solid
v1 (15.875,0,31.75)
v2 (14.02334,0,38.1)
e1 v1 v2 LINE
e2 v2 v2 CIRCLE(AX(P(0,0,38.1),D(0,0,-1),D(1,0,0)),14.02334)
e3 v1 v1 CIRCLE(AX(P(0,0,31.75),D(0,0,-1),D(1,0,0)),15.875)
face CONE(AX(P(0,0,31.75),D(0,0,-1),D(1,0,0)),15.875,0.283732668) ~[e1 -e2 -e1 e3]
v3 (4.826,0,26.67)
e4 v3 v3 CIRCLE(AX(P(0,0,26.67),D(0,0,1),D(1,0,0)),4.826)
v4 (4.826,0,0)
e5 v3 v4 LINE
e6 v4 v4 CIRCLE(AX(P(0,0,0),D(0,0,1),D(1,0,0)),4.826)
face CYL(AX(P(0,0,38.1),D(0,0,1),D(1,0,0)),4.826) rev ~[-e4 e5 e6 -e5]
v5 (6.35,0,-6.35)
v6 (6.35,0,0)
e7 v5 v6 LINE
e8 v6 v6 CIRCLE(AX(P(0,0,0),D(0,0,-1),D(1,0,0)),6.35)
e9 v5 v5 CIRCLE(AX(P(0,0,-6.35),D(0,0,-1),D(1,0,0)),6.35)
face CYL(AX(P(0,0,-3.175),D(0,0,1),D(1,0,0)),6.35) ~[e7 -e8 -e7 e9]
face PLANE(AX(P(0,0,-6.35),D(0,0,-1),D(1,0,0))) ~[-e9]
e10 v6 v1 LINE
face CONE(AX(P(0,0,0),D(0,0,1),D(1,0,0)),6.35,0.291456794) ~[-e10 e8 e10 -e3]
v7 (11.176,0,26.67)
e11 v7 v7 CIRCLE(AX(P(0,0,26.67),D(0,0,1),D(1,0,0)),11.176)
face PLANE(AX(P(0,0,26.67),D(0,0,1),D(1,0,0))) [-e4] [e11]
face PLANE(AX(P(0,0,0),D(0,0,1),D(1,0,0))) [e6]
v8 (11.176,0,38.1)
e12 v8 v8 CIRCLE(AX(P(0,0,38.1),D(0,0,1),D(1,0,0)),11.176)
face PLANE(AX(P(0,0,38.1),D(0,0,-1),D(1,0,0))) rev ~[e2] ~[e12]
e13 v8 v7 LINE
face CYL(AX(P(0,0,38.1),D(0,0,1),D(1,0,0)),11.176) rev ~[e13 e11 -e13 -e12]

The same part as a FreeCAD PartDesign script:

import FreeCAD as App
import Part
import Sketcher

V = App.Vector
Q = App.Units.Quantity


def add_polygon(sketch, points):
    """Adds a closed chain of lines whose ends are joined by coincident constraints."""
    first, n = sketch.GeometryCount, len(points)
    for a, b in zip(points, points[1:] + points[:1]):
        sketch.addGeometry(Part.LineSegment(App.Vector(*a, 0), App.Vector(*b, 0)), False)
    for i in range(n):
        sketch.addConstraint(Sketcher.Constraint("Coincident", first + i, 2, first + (i + 1) % n, 1))

doc = App.newDocument("Part")
body = doc.addObject("PartDesign::Body", "Body")

# Sketch on XZ plane
sketch1 = doc.addObject("Sketcher::SketchObject", "Sketch")
body.addObject(sketch1)
sketch1.AttachmentSupport = (doc.XZ_Plane, [""])
sketch1.MapMode = "FlatFace"
add_polygon(sketch1, [(0, 38.1), (0, -6.35), (6.35, -6.35), (6.35, 0), (15.875, 31.75), (14.02334, 38.1)])  # lines 0-5
sketch1.addConstraint([
    Sketcher.Constraint("Vertical", 0),
    Sketcher.Constraint("Horizontal", 1),
    Sketcher.Constraint("Vertical", 2),
    Sketcher.Constraint("Horizontal", 5),
    Sketcher.Constraint("PointOnObject", 0, 2, -2),
    Sketcher.Constraint("PointOnObject", 2, 2, -1),
    Sketcher.Constraint("Equal", 1, 2),
    Sketcher.Constraint("DistanceX", 1, 1, 1, 2, Q("0.25 in")),
    Sketcher.Constraint("DistanceY", 0, 2, 0, 1, Q("1.75 in")),
    Sketcher.Constraint("DistanceY", 1, 2, 3, 2, Q("1.5 in")),
    Sketcher.Constraint("DistanceX", 5, 2, 5, 1, Q("0.5521 in")),
    Sketcher.Constraint("DistanceX", -1, 1, 3, 2, Q("0.625 in")),
])
revolution = doc.addObject("PartDesign::Revolution", "Revolution")
body.addObject(revolution)
revolution.Profile = sketch1
revolution.ReferenceAxis = (sketch1, ["V_Axis"])
revolution.Angle = 360

# Sketch on XY plane
sketch2 = doc.addObject("Sketcher::SketchObject", "Sketch001")
body.addObject(sketch2)
sketch2.AttachmentSupport = (doc.XY_Plane, [""])
sketch2.MapMode = "FlatFace"
sketch2.AttachmentOffset = App.Placement(V(0, 0, 1.5 * 25.4), App.Rotation())
sketch2.addGeometry(Part.Circle(V(0, 0, 0), V(0, 0, 1), 11.176), False)
sketch2.addConstraint([
    Sketcher.Constraint("Coincident", 0, 3, -1, 1),
    Sketcher.Constraint("Diameter", 0, Q("0.88 in")),
])
pocket1 = doc.addObject("PartDesign::Pocket", "Pocket")
body.addObject(pocket1)
pocket1.Profile = sketch2
pocket1.Length = Q("0.45 in")

# Sketch on XY plane
sketch3 = doc.addObject("Sketcher::SketchObject", "Sketch002")
body.addObject(sketch3)
sketch3.AttachmentSupport = (doc.XY_Plane, [""])
sketch3.MapMode = "FlatFace"
sketch3.AttachmentOffset = App.Placement(V(0, 0, 1.5 * 25.4), App.Rotation())
sketch3.addGeometry(Part.Circle(V(0, 0, 0), V(0, 0, 1), 4.826), False)
sketch3.addConstraint([
    Sketcher.Constraint("Coincident", 0, 3, -1, 1),
    Sketcher.Constraint("Diameter", 0, Q("0.38 in")),
])
pocket2 = doc.addObject("PartDesign::Pocket", "Pocket001")
body.addObject(pocket2)
pocket2.Profile = sketch3
pocket2.Length = Q("1.5 in")

doc.recompute()
